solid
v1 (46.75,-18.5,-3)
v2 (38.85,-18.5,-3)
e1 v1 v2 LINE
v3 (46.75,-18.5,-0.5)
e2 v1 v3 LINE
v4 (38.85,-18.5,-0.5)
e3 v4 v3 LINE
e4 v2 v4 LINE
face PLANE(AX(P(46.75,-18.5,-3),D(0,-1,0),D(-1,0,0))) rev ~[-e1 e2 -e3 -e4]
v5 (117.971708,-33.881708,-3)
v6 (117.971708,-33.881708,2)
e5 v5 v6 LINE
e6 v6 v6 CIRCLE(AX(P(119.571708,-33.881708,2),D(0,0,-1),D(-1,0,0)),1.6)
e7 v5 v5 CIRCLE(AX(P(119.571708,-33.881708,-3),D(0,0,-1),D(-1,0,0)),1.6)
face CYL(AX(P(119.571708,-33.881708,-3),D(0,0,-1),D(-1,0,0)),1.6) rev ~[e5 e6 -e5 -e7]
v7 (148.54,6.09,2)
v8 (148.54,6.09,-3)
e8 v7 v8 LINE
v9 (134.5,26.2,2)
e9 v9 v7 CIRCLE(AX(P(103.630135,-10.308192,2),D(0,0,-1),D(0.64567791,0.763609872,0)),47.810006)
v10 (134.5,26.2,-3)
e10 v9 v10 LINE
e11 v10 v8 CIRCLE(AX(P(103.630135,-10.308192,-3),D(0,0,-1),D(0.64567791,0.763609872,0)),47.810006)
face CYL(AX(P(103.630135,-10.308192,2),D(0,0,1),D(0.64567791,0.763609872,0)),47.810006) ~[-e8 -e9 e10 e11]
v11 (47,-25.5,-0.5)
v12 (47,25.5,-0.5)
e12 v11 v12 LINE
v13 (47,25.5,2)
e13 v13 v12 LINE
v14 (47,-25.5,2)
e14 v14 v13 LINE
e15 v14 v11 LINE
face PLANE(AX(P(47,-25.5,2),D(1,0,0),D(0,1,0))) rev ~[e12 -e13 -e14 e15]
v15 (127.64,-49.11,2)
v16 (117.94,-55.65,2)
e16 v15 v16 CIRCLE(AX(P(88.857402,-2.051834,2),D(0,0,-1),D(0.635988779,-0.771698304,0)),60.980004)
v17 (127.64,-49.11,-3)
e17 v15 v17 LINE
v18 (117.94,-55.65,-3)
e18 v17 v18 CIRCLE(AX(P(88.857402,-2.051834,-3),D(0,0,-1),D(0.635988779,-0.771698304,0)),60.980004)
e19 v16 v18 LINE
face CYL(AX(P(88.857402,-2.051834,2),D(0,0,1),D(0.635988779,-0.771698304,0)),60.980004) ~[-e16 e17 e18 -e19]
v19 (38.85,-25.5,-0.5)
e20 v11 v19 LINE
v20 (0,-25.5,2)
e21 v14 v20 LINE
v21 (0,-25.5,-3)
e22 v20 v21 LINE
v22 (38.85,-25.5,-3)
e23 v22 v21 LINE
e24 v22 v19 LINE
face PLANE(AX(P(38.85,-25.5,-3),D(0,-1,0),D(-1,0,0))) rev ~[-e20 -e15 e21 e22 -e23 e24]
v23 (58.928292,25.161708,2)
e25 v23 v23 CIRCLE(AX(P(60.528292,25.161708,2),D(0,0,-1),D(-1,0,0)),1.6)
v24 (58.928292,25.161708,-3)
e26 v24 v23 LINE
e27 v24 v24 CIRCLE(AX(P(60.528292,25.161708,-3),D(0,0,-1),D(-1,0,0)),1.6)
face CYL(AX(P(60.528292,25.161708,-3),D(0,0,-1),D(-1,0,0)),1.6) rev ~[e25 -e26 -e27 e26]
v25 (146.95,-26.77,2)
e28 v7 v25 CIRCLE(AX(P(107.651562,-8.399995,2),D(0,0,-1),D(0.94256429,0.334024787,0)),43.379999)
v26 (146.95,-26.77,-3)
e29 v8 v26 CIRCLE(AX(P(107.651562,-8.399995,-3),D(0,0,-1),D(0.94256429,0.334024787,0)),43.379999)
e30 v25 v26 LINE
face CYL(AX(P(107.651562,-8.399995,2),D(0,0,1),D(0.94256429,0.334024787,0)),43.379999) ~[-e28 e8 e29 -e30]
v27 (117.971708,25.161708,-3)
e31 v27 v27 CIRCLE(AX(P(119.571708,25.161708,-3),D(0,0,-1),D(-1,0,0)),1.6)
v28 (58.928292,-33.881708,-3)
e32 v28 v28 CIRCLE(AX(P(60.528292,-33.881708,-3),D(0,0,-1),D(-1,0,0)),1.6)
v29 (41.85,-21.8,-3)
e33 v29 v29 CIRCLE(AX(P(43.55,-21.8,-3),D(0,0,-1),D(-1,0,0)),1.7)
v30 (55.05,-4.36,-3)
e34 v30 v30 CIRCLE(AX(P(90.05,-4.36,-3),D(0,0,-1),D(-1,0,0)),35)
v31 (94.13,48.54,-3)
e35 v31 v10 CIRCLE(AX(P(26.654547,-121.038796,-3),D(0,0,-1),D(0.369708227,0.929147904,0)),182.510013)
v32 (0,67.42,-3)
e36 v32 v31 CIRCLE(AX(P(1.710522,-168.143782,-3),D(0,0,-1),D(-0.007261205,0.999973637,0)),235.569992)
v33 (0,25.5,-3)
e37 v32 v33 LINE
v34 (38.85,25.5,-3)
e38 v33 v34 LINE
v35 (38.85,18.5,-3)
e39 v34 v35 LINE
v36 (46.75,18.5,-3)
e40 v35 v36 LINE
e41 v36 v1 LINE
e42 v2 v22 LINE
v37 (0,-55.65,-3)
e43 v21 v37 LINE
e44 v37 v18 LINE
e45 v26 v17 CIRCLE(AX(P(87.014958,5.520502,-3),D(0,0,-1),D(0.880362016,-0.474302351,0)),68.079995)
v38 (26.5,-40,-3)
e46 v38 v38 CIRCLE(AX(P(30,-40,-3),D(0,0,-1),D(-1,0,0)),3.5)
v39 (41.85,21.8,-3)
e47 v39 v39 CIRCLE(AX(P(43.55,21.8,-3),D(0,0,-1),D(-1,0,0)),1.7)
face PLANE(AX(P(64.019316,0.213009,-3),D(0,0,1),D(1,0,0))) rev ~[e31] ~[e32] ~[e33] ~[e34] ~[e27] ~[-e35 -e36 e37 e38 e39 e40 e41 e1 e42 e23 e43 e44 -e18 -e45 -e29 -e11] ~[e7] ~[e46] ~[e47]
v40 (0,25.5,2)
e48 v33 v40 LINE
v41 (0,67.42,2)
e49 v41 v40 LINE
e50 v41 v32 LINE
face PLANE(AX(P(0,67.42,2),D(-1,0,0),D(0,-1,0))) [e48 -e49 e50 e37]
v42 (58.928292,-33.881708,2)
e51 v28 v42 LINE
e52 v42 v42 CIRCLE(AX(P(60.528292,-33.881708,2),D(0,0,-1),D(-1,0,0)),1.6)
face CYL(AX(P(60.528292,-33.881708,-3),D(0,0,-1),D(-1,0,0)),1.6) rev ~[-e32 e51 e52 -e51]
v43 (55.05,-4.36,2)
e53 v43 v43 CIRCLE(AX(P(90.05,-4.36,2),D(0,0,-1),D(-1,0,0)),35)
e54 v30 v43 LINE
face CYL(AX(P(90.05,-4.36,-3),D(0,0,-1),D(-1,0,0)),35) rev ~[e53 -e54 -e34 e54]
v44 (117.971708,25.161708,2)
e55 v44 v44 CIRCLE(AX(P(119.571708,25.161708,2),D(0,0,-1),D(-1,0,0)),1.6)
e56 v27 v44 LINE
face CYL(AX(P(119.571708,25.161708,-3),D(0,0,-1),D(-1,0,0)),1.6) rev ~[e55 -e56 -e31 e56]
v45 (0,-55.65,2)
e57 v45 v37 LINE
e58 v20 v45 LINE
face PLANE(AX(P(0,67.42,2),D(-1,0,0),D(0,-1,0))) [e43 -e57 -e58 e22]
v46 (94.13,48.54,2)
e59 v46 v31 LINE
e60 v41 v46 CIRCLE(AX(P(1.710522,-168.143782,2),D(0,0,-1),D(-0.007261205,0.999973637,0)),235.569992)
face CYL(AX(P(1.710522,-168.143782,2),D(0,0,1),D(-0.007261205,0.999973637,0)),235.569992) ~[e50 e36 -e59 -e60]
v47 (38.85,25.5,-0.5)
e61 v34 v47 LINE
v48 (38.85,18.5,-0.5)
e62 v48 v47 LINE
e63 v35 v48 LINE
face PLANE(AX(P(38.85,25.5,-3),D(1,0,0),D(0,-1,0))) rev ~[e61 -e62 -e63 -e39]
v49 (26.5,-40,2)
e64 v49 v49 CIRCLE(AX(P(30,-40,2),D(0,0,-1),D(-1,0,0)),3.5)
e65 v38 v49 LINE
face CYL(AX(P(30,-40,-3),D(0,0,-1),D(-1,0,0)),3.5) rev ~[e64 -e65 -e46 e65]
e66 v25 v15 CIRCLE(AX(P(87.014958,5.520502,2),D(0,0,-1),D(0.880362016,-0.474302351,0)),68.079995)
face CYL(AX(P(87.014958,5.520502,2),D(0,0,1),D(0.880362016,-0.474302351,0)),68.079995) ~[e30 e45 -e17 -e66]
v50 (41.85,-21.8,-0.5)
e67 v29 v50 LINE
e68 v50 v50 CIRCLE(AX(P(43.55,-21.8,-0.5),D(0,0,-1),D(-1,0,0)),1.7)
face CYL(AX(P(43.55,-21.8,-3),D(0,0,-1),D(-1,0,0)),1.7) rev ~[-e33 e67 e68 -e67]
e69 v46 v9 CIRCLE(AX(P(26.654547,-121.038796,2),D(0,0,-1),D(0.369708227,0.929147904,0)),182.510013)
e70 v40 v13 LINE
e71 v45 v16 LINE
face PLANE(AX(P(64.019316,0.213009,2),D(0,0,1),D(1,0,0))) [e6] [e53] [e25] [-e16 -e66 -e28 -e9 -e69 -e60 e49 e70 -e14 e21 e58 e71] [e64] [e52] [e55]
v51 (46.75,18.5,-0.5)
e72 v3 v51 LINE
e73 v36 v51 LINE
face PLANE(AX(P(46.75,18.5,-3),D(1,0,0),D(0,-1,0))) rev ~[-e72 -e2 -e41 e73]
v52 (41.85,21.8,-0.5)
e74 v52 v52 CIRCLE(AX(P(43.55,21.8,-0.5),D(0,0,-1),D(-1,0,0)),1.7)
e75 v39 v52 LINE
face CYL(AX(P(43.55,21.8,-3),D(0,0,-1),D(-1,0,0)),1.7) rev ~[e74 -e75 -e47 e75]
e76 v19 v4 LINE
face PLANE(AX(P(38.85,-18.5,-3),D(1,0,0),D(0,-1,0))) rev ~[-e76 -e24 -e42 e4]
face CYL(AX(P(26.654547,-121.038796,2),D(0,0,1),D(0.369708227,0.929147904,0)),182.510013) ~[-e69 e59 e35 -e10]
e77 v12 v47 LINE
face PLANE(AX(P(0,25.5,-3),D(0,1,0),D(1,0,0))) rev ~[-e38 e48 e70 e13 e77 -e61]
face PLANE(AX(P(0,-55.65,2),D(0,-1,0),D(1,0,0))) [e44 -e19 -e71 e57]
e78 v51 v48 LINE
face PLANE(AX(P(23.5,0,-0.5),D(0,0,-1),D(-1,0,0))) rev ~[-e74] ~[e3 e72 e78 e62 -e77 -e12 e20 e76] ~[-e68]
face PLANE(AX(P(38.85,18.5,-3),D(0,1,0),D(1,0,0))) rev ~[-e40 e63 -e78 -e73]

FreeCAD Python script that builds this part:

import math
import FreeCAD as App
import Part
import Sketcher
Q = App.Units.Quantity


def add_polygon(sketch, points):
    """Adds a closed chain of lines whose ends are joined by coincident constraints."""
    first, n = sketch.GeometryCount, len(points)
    for a, b in zip(points, points[1:] + points[:1]):
        sketch.addGeometry(Part.LineSegment(App.Vector(*a, 0), App.Vector(*b, 0)), False)
    for i in range(n):
        sketch.addConstraint(Sketcher.Constraint("Coincident", first + i, 2, first + (i + 1) % n, 1))

doc = App.newDocument("Part")
body = doc.addObject("PartDesign::Body", "Body")

# Sketch on XY plane
sketch1 = body.newObject("Sketcher::SketchObject", "Sketch")
sketch1.AttachmentSupport = (doc.getObject("XY_Plane"), [""])
sketch1.MapMode = "FlatFace"
sketch1.addGeometry([
    Part.LineSegment(App.Vector(0, -56, 0), App.Vector(0, 67, 0)),  # 0
    Part.ArcOfCircle(Part.Circle(App.Vector(-2, -168, 0), App.Vector(0, 0, 1), 236), math.radians(90), math.radians(113)),  # 1
    Part.ArcOfCircle(Part.Circle(App.Vector(-27, -121, 0), App.Vector(0, 0, 1), 183), math.radians(111.7), math.radians(126.22)),  # 2
    Part.ArcOfCircle(Part.Circle(App.Vector(-104, -10, 0), App.Vector(0, 0, 1), 48), math.radians(130), math.radians(160)),  # 3
    Part.ArcOfCircle(Part.Circle(App.Vector(-108, -8, 0), App.Vector(0, 0, 1), 43), math.radians(160), math.radians(205)),  # 4
    Part.ArcOfCircle(Part.Circle(App.Vector(-87, 6, 0), App.Vector(0, 0, 1), 68), math.radians(-152), math.radians(-127)),  # 5
    Part.ArcOfCircle(Part.Circle(App.Vector(-89, -2, 0), App.Vector(0, 0, 1), 61), math.radians(-129.49), math.radians(-118.48)),  # 6
    Part.LineSegment(App.Vector(-118, -56, 0), App.Vector(0, -56, 0)),  # 7
], False)
sketch1.addConstraint([
    Sketcher.Constraint("Coincident", 0, 2, 1, 1),
    Sketcher.Constraint("Coincident", 1, 2, 2, 1),
    Sketcher.Constraint("Coincident", 2, 2, 3, 1),
    Sketcher.Constraint("Coincident", 3, 2, 4, 1),
    Sketcher.Constraint("Coincident", 4, 2, 5, 1),
    Sketcher.Constraint("Coincident", 5, 2, 6, 1),
    Sketcher.Constraint("Coincident", 6, 2, 7, 1),
    Sketcher.Constraint("Coincident", 7, 2, 0, 1),
    Sketcher.Constraint("Vertical", 0),
    Sketcher.Constraint("Horizontal", 7),
    Sketcher.Constraint("PointOnObject", 0, 2, -2),
    Sketcher.Constraint("Radius", 4, Q("43.379999 mm")),
    Sketcher.Constraint("DistanceX", 7, 1, 7, 2, Q("117.94 mm")),
    Sketcher.Constraint("DistanceY", 0, 1, 0, 2, Q("123.07 mm")),
    Sketcher.Constraint("DistanceX", 2, 2, -1, 1, Q("134.5 mm")),
    Sketcher.Constraint("DistanceY", -1, 1, 2, 2, Q("26.2 mm")),
    Sketcher.Constraint("DistanceX", 3, 2, 5, 2, Q("20.9 mm")),
    Sketcher.Constraint("DistanceY", 5, 2, 3, 2, Q("55.2 mm")),
    Sketcher.Constraint("DistanceX", 5, 2, 6, 2, Q("9.7 mm")),
    Sketcher.Constraint("DistanceY", -1, 1, 0, 2, Q("67.42 mm")),
    Sketcher.Constraint("DistanceX", 1, 2, -1, 1, Q("94.13 mm")),
    Sketcher.Constraint("DistanceY", -1, 1, 1, 2, Q("48.54 mm")),
    Sketcher.Constraint("DistanceY", -1, 1, 3, 2, Q("6.09 mm")),
    Sketcher.Constraint("DistanceX", 4, 2, -1, 1, Q("146.95 mm")),
    Sketcher.Constraint("DistanceY", 4, 2, -1, 1, Q("26.77 mm")),
    Sketcher.Constraint("Radius", 1, Q("235.569992 mm")),
    Sketcher.Constraint("Radius", 2, Q("182.510013 mm")),
    Sketcher.Constraint("Radius", 3, Q("47.810006 mm")),
    Sketcher.Constraint("Radius", 5, Q("68.079995 mm")),
    Sketcher.Constraint("Radius", 6, Q("60.980004 mm")),
])
pad1 = body.newObject("PartDesign::Pad", "Pad")
pad1.Profile = sketch1
pad1.Length = 5

# Sketch on XY plane
sketch2 = body.newObject("Sketcher::SketchObject", "Sketch001")
sketch2.AttachmentSupport = (doc.getObject("XY_Plane"), [""])
sketch2.MapMode = "FlatFace"
sketch2.AttachmentOffset = App.Placement(App.Vector(0, 0, 5), App.Rotation())
sketch2.addGeometry([
    Part.Circle(App.Vector(-90, -4.4, 0), App.Vector(0, 0, 1), 35),  # 0
    Part.Circle(App.Vector(-119.6, 25.2, 0), App.Vector(0, 0, 1), 1.6),  # 1
    Part.Circle(App.Vector(-60.5, 25.2, 0), App.Vector(0, 0, 1), 1.6),  # 2
    Part.Circle(App.Vector(-60.5, -33.9, 0), App.Vector(0, 0, 1), 1.6),  # 3
    Part.Circle(App.Vector(-119.6, -33.9, 0), App.Vector(0, 0, 1), 1.6),  # 4
], False)
sketch2.addConstraint([
    Sketcher.Constraint("Equal", 1, 2),
    Sketcher.Constraint("Equal", 2, 3),
    Sketcher.Constraint("Equal", 3, 4),
    Sketcher.Constraint("Horizontal", 1, 3, 2, 3),
    Sketcher.Constraint("Horizontal", 3, 3, 4, 3),
    Sketcher.Constraint("Vertical", 2, 3, 3, 3),
    Sketcher.Constraint("Vertical", 1, 3, 4, 3),
    Sketcher.Constraint("Diameter", 0, Q("70 mm")),
    Sketcher.Constraint("Diameter", 1, Q("3.2 mm")),
    Sketcher.Constraint("DistanceX", 0, 3, -1, 1, Q("90.05 mm")),
    Sketcher.Constraint("DistanceY", 0, 3, -1, 1, Q("4.36 mm")),
    Sketcher.Constraint("DistanceX", 1, 3, -1, 1, Q("119.571708 mm")),
    Sketcher.Constraint("DistanceY", -1, 1, 1, 3, Q("25.161708 mm")),
    Sketcher.Constraint("DistanceY", 3, 3, -1, 1, Q("33.881708 mm")),
    Sketcher.Constraint("DistanceX", 2, 3, -1, 1, Q("60.528292 mm")),
])
pocket1 = body.newObject("PartDesign::Pocket", "Pocket")
pocket1.Profile = sketch2
pocket1.Type = "ThroughAll"

# Sketch on XY plane
sketch3 = body.newObject("Sketcher::SketchObject", "Sketch002")
sketch3.AttachmentSupport = (doc.getObject("XY_Plane"), [""])
sketch3.MapMode = "FlatFace"
sketch3.AttachmentOffset = App.Placement(App.Vector(0, 0, 5), App.Rotation())
sketch3.addGeometry(Part.Circle(App.Vector(-30, -40, 0), App.Vector(0, 0, 1), 3.5), False)  # 0
sketch3.addGeometry(Part.Circle(App.Vector(-43.5, 21.8, 0), App.Vector(0, 0, 1), 1.7), False)  # 1
sketch3.addGeometry(Part.Circle(App.Vector(-43.5, -21.8, 0), App.Vector(0, 0, 1), 1.7), False)  # 2
add_polygon(sketch3, [(0, 25.5), (-38.9, 25.5), (-38.9, 18.5), (-46.8, 18.5), (-46.8, -18.5), (-38.9, -18.5), (-38.9, -25.5), (0, -25.5)])  # lines 3-10
sketch3.addConstraint([
    Sketcher.Constraint("Horizontal", 3),
    Sketcher.Constraint("Vertical", 4),
    Sketcher.Constraint("Horizontal", 5),
    Sketcher.Constraint("Vertical", 6),
    Sketcher.Constraint("Horizontal", 7),
    Sketcher.Constraint("Vertical", 8),
    Sketcher.Constraint("Horizontal", 9),
    Sketcher.Constraint("Vertical", 10),
    Sketcher.Constraint("Equal", 1, 2),
    Sketcher.Constraint("Symmetric", 9, 2, 10, 2, -1, 1),
    Sketcher.Constraint("Symmetric", 1, 3, 2, 3, -1),
    Sketcher.Constraint("Symmetric", 4, 2, 7, 2, -1),
    Sketcher.Constraint("Diameter", 0, Q("7 mm")),
    Sketcher.Constraint("Diameter", 1, Q("3.4 mm")),
    Sketcher.Constraint("DistanceY", 4, 2, 4, 1, Q("7 mm")),
    Sketcher.Constraint("DistanceY", 6, 2, 6, 1, Q("37 mm")),
    Sketcher.Constraint("DistanceX", 5, 2, 5, 1, Q("7.9 mm")),
    Sketcher.Constraint("DistanceX", 0, 3, -1, 1, Q("30 mm")),
    Sketcher.Constraint("DistanceY", 0, 3, -1, 1, Q("40 mm")),
    Sketcher.Constraint("DistanceX", 3, 2, 3, 1, Q("38.85 mm")),
    Sketcher.Constraint("DistanceY", -1, 1, 1, 3, Q("21.8 mm")),
    Sketcher.Constraint("DistanceX", 1, 3, 3, 2, Q("4.7 mm")),
])
pocket2 = body.newObject("PartDesign::Pocket", "Pocket001")
pocket2.Profile = sketch3
pocket2.Type = "ThroughAll"

# Sketch on XY plane
sketch4 = body.newObject("Sketcher::SketchObject", "Sketch003")
sketch4.AttachmentSupport = (doc.getObject("XY_Plane"), [""])
sketch4.MapMode = "FlatFace"
add_polygon(sketch4, [(-47, 26), (-47, -26), (0, -26), (0, 26)])  # lines 0-3
sketch4.addConstraint([
    Sketcher.Constraint("Vertical", 0),
    Sketcher.Constraint("Horizontal", 1),
    Sketcher.Constraint("Vertical", 2),
    Sketcher.Constraint("Horizontal", 3),
    Sketcher.Constraint("Symmetric", 1, 2, 2, 2, -1, 1),
    Sketcher.Constraint("DistanceX", 1, 1, 1, 2, Q("47 mm")),
    Sketcher.Constraint("DistanceY", 0, 2, 0, 1, Q("51 mm")),
])
pocket3 = body.newObject("PartDesign::Pocket", "Pocket002")
pocket3.Profile = sketch4
pocket3.Length = 2.5
pocket3.Reversed = True
body2 = doc.addObject("PartDesign::Body", "Body001")
doc.recompute()

body.Placement = App.Placement(App.Vector(0, 0, 2), App.Rotation(App.Vector(0, 1, 0), 180))
boolean = body2.newObject("PartDesign::Boolean", "Boolean")
boolean.Type = "Fuse"
boolean.addObjects([body])

doc.recompute()
